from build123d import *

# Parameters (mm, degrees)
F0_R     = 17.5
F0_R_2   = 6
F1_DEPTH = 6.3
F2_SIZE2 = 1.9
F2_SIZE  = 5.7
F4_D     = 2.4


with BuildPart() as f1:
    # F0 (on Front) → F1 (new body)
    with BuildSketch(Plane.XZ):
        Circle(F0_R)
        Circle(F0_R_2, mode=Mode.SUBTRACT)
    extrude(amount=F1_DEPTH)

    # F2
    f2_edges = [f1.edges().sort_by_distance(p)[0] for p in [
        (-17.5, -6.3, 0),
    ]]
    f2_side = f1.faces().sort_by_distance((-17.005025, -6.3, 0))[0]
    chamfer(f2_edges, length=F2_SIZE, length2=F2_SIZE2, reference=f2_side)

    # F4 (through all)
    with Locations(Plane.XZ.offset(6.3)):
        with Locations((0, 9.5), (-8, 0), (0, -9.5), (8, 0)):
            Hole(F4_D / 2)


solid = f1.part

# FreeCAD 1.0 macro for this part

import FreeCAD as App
import Part
import Sketcher
Q = App.Units.Quantity


def edges_at(feature, points):
    """Names of the edges that pass closest to the given points."""
    edges = feature.Shape.Edges
    near = lambda p: min(range(len(edges)), key=lambda i: edges[i].distToShape(Part.Vertex(*p))[0])
    return sorted({f"Edge{near(p) + 1}" for p in points})

doc = App.newDocument("Part")
body = doc.addObject("PartDesign::Body", "Body")

# Sketch on XZ plane
sketch1 = body.newObject("Sketcher::SketchObject", "Sketch")
sketch1.AttachmentSupport = (doc.getObject("XZ_Plane"), [""])
sketch1.MapMode = "FlatFace"
sketch1.addGeometry(Part.Circle(App.Vector(0, 0, 0), App.Vector(0, 0, 1), 18), False)
sketch1.addGeometry(Part.Circle(App.Vector(0, 0, 0), App.Vector(0, 0, 1), 6), False)
sketch1.addConstraint(Sketcher.Constraint("Coincident", 0, 3, -1, 1))
sketch1.addConstraint(Sketcher.Constraint("Coincident", 1, 3, -1, 1))
sketch1.addConstraint(Sketcher.Constraint("Diameter", 0, Q("35 mm")))
sketch1.addConstraint(Sketcher.Constraint("Diameter", 1, Q("12 mm")))
pad1 = body.newObject("PartDesign::Pad", "Pad")
pad1.Profile = sketch1
pad1.Length = 6.3
doc.recompute()

chamfer = body.newObject("PartDesign::Chamfer", "Chamfer")
chamfer.Base = (pad1, edges_at(pad1, [(-17.5, -6.3, 0)]))
chamfer.ChamferType = "Two distances"
chamfer.Size = 5.7
chamfer.Size2 = 1.9
chamfer.FlipDirection = True

# Sketch on XZ plane
sketch2 = body.newObject("Sketcher::SketchObject", "Sketch001")
sketch2.AttachmentSupport = (doc.getObject("XZ_Plane"), [""])
sketch2.MapMode = "FlatFace"
sketch2.AttachmentOffset = App.Placement(App.Vector(0, 0, 6.3), App.Rotation())
sketch2.addGeometry(Part.Circle(App.Vector(0, 9.5, 0), App.Vector(0, 0, 1), 1.2), False)
sketch2.addGeometry(Part.Circle(App.Vector(-8, 0, 0), App.Vector(0, 0, 1), 1.2), False)
sketch2.addGeometry(Part.Circle(App.Vector(0, -9.5, 0), App.Vector(0, 0, 1), 1.2), False)
sketch2.addGeometry(Part.Circle(App.Vector(8, 0, 0), App.Vector(0, 0, 1), 1.2), False)
sketch2.addConstraint(Sketcher.Constraint("Equal", 0, 1))
sketch2.addConstraint(Sketcher.Constraint("Equal", 1, 2))
sketch2.addConstraint(Sketcher.Constraint("Equal", 2, 3))
sketch2.addConstraint(Sketcher.Constraint("Symmetric", 0, 3, 2, 3, -1, 1))
sketch2.addConstraint(Sketcher.Constraint("Symmetric", 1, 3, 3, 3, -1, 1))
sketch2.addConstraint(Sketcher.Constraint("PointOnObject", 0, 3, -2))
sketch2.addConstraint(Sketcher.Constraint("PointOnObject", 1, 3, -1))
sketch2.addConstraint(Sketcher.Constraint("Diameter", 0, Q("2.4 mm")))
sketch2.addConstraint(Sketcher.Constraint("DistanceX", 1, 3, -1, 1, Q("8 mm")))
sketch2.addConstraint(Sketcher.Constraint("DistanceY", 2, 3, 0, 3, Q("19 mm")))
doc.recompute()
hole = body.newObject("PartDesign::Hole", "Hole")
hole.Profile = sketch2
hole.ThreadType = "None"
hole.Diameter = 2.4
hole.DepthType = "ThroughAll"

doc.recompute()
